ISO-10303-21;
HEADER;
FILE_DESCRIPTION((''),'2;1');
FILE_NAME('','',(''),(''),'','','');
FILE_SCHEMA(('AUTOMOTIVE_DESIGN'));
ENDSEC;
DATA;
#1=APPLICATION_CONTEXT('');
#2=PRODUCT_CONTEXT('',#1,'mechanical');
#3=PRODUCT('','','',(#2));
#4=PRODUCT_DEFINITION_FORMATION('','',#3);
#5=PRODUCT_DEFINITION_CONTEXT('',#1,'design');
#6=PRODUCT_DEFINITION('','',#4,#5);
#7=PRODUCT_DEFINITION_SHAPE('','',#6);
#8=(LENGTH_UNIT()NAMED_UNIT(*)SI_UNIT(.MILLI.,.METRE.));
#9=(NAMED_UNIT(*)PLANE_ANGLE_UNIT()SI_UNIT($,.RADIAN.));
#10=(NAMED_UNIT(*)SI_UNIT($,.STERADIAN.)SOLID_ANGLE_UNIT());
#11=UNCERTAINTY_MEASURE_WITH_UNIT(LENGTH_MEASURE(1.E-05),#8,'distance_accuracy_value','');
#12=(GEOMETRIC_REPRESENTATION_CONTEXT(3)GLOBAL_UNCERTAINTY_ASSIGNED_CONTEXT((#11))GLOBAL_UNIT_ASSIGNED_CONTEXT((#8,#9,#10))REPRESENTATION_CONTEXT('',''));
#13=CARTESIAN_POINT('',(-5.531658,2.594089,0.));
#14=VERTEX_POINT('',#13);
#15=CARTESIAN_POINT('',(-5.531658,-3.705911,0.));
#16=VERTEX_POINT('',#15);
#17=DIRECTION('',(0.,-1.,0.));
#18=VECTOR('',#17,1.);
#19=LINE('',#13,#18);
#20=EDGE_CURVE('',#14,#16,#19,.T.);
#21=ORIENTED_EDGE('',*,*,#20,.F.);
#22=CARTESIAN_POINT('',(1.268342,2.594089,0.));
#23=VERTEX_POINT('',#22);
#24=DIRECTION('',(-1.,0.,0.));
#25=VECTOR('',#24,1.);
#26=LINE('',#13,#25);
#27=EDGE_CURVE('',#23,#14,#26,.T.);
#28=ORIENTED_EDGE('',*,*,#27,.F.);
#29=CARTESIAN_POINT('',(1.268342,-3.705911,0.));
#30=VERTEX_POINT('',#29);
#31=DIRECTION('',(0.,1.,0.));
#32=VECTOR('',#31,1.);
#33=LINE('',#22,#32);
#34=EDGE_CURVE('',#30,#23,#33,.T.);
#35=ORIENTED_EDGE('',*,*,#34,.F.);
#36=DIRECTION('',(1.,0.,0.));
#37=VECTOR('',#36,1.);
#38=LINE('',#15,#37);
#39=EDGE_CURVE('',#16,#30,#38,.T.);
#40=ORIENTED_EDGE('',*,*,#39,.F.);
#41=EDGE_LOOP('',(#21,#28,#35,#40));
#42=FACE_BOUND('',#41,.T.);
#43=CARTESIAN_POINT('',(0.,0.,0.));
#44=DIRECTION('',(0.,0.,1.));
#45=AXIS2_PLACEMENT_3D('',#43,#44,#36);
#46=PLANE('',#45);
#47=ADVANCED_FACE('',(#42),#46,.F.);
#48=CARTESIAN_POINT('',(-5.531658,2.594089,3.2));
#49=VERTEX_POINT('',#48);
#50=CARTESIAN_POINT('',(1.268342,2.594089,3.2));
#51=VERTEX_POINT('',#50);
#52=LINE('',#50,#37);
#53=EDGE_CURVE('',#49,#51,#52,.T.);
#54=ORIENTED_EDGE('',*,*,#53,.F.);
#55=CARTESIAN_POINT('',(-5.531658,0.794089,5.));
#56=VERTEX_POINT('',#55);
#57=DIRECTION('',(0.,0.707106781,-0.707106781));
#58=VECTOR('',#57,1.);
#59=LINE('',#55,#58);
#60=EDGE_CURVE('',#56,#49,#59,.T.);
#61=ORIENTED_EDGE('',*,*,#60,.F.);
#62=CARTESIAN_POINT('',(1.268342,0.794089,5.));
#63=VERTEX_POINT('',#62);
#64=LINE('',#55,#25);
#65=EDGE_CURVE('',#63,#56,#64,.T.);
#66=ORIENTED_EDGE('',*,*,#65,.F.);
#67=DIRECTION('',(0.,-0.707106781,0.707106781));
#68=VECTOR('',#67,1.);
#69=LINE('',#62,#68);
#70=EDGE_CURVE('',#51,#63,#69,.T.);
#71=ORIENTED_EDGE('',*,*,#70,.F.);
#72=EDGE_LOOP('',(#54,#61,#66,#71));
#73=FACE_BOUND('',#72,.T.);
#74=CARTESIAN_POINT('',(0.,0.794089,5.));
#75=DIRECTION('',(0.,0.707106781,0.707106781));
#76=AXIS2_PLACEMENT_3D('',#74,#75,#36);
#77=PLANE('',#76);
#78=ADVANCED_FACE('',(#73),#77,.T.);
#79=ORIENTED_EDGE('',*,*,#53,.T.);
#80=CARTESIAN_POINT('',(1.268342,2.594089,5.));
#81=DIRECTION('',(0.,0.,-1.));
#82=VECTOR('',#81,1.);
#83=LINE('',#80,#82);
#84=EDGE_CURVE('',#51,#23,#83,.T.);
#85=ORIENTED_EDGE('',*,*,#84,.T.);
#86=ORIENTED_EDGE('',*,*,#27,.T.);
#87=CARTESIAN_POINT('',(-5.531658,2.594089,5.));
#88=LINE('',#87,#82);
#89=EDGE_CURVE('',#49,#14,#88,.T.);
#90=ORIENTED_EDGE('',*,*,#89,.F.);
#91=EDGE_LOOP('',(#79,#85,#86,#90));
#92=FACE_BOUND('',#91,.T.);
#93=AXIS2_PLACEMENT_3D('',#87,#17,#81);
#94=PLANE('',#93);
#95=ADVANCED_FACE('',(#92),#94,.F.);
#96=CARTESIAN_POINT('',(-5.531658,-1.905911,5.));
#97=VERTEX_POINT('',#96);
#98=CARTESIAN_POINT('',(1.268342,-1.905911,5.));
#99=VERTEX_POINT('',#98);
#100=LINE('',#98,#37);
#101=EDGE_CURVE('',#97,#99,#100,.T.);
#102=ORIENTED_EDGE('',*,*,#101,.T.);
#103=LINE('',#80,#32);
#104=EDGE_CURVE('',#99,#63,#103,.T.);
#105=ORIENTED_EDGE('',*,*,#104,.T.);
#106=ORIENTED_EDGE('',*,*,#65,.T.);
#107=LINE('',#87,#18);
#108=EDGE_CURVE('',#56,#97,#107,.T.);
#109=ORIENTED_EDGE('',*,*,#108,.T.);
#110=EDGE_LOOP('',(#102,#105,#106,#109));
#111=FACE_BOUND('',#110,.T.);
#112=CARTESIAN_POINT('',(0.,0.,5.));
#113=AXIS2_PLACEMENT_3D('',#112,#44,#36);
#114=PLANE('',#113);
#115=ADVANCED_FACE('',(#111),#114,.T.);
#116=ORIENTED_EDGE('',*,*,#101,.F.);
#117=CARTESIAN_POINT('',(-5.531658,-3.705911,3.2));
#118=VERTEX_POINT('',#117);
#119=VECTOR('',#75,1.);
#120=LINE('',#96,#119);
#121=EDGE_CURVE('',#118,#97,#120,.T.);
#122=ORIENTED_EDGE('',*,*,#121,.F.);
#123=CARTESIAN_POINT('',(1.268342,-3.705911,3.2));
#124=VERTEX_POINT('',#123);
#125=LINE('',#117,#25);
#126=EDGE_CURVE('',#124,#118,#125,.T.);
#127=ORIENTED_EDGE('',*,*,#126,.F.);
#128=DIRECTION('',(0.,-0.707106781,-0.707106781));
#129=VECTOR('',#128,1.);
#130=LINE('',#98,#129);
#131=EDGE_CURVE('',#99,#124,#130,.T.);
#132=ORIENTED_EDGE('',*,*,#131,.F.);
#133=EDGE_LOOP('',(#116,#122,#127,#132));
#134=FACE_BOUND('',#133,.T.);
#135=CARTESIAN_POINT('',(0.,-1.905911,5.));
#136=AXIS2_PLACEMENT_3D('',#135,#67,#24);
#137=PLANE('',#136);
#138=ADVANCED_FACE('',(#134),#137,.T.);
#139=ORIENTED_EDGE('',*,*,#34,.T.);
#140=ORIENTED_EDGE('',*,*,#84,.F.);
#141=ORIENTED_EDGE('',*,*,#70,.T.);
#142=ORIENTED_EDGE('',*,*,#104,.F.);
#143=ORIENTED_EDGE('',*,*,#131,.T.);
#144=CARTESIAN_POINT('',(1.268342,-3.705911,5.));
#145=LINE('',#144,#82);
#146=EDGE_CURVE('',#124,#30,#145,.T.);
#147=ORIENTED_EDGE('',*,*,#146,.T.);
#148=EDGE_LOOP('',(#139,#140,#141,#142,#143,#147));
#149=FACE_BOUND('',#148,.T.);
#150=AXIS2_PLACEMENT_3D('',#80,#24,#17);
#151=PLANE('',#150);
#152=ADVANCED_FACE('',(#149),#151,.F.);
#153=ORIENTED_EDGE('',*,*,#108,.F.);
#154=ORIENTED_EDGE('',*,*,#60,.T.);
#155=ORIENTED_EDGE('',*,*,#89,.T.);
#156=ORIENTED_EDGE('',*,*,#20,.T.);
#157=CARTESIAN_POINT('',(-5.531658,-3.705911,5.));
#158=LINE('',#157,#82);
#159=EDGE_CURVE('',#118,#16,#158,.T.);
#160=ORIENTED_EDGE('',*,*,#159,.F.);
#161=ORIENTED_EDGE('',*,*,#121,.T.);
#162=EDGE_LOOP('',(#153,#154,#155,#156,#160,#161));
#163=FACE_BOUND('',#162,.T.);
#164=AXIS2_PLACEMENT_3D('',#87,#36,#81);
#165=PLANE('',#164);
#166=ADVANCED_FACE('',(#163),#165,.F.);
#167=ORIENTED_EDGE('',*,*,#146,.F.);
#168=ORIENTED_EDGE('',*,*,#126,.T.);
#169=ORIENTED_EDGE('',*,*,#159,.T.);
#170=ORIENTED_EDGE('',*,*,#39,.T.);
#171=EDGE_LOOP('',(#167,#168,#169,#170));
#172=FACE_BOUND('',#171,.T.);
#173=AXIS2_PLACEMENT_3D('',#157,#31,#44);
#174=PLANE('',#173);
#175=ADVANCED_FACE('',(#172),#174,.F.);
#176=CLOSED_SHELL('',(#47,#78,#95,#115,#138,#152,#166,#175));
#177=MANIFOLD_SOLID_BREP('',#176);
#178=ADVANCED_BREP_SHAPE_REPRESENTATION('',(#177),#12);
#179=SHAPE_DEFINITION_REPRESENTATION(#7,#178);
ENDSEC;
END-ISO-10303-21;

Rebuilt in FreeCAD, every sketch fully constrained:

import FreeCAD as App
import Part
import Sketcher


def edges_at(feature, points):
    """Names of the edges that pass closest to the given points."""
    edges = feature.Shape.Edges
    near = lambda p: min(range(len(edges)), key=lambda i: edges[i].distToShape(Part.Vertex(*p))[0])
    return sorted({f"Edge{near(p) + 1}" for p in points})


def add_polygon(sketch, points):
    """Adds a closed chain of lines whose ends are joined by coincident constraints."""
    first, n = sketch.GeometryCount, len(points)
    for a, b in zip(points, points[1:] + points[:1]):
        sketch.addGeometry(Part.LineSegment(App.Vector(*a, 0), App.Vector(*b, 0)), False)
    for i in range(n):
        sketch.addConstraint(Sketcher.Constraint("Coincident", first + i, 2, first + (i + 1) % n, 1))

doc = App.newDocument("Part")
body = doc.addObject("PartDesign::Body", "Body")

sketch1 = body.newObject("Sketcher::SketchObject", "Sketch")
sketch1.AttachmentSupport = (doc.getObject("XY_Plane"), [""])
sketch1.MapMode = "FlatFace"
add_polygon(sketch1, [(-5.531658, 2.594089), (-5.531658, -3.705911), (1.268342, -3.705911), (1.268342, 2.594089)])
sketch1.addConstraint([
    Sketcher.Constraint("Vertical", 0),
    Sketcher.Constraint("Horizontal", 1),
    Sketcher.Constraint("Vertical", 2),
    Sketcher.Constraint("Horizontal", 3),
    Sketcher.Constraint("DistanceX", 1, 1, 1, 2, 6.8),
    Sketcher.Constraint("DistanceY", 0, 2, 0, 1, 6.3),
    Sketcher.Constraint("DistanceY", 0, 2, -1, 1, 3.705911),
    Sketcher.Constraint("DistanceX", 0, 2, -1, 1, 5.531658),
])
pad1 = body.newObject("PartDesign::Pad", "Pad")
pad1.Profile = sketch1
pad1.Length = 5
doc.recompute()

chamfer = body.newObject("PartDesign::Chamfer", "Chamfer")
chamfer.Base = (pad1, edges_at(pad1, [(-2.132, 2.594, 5), (-2.132, -3.706, 5)]))
chamfer.Size = 1.8

doc.recompute()
